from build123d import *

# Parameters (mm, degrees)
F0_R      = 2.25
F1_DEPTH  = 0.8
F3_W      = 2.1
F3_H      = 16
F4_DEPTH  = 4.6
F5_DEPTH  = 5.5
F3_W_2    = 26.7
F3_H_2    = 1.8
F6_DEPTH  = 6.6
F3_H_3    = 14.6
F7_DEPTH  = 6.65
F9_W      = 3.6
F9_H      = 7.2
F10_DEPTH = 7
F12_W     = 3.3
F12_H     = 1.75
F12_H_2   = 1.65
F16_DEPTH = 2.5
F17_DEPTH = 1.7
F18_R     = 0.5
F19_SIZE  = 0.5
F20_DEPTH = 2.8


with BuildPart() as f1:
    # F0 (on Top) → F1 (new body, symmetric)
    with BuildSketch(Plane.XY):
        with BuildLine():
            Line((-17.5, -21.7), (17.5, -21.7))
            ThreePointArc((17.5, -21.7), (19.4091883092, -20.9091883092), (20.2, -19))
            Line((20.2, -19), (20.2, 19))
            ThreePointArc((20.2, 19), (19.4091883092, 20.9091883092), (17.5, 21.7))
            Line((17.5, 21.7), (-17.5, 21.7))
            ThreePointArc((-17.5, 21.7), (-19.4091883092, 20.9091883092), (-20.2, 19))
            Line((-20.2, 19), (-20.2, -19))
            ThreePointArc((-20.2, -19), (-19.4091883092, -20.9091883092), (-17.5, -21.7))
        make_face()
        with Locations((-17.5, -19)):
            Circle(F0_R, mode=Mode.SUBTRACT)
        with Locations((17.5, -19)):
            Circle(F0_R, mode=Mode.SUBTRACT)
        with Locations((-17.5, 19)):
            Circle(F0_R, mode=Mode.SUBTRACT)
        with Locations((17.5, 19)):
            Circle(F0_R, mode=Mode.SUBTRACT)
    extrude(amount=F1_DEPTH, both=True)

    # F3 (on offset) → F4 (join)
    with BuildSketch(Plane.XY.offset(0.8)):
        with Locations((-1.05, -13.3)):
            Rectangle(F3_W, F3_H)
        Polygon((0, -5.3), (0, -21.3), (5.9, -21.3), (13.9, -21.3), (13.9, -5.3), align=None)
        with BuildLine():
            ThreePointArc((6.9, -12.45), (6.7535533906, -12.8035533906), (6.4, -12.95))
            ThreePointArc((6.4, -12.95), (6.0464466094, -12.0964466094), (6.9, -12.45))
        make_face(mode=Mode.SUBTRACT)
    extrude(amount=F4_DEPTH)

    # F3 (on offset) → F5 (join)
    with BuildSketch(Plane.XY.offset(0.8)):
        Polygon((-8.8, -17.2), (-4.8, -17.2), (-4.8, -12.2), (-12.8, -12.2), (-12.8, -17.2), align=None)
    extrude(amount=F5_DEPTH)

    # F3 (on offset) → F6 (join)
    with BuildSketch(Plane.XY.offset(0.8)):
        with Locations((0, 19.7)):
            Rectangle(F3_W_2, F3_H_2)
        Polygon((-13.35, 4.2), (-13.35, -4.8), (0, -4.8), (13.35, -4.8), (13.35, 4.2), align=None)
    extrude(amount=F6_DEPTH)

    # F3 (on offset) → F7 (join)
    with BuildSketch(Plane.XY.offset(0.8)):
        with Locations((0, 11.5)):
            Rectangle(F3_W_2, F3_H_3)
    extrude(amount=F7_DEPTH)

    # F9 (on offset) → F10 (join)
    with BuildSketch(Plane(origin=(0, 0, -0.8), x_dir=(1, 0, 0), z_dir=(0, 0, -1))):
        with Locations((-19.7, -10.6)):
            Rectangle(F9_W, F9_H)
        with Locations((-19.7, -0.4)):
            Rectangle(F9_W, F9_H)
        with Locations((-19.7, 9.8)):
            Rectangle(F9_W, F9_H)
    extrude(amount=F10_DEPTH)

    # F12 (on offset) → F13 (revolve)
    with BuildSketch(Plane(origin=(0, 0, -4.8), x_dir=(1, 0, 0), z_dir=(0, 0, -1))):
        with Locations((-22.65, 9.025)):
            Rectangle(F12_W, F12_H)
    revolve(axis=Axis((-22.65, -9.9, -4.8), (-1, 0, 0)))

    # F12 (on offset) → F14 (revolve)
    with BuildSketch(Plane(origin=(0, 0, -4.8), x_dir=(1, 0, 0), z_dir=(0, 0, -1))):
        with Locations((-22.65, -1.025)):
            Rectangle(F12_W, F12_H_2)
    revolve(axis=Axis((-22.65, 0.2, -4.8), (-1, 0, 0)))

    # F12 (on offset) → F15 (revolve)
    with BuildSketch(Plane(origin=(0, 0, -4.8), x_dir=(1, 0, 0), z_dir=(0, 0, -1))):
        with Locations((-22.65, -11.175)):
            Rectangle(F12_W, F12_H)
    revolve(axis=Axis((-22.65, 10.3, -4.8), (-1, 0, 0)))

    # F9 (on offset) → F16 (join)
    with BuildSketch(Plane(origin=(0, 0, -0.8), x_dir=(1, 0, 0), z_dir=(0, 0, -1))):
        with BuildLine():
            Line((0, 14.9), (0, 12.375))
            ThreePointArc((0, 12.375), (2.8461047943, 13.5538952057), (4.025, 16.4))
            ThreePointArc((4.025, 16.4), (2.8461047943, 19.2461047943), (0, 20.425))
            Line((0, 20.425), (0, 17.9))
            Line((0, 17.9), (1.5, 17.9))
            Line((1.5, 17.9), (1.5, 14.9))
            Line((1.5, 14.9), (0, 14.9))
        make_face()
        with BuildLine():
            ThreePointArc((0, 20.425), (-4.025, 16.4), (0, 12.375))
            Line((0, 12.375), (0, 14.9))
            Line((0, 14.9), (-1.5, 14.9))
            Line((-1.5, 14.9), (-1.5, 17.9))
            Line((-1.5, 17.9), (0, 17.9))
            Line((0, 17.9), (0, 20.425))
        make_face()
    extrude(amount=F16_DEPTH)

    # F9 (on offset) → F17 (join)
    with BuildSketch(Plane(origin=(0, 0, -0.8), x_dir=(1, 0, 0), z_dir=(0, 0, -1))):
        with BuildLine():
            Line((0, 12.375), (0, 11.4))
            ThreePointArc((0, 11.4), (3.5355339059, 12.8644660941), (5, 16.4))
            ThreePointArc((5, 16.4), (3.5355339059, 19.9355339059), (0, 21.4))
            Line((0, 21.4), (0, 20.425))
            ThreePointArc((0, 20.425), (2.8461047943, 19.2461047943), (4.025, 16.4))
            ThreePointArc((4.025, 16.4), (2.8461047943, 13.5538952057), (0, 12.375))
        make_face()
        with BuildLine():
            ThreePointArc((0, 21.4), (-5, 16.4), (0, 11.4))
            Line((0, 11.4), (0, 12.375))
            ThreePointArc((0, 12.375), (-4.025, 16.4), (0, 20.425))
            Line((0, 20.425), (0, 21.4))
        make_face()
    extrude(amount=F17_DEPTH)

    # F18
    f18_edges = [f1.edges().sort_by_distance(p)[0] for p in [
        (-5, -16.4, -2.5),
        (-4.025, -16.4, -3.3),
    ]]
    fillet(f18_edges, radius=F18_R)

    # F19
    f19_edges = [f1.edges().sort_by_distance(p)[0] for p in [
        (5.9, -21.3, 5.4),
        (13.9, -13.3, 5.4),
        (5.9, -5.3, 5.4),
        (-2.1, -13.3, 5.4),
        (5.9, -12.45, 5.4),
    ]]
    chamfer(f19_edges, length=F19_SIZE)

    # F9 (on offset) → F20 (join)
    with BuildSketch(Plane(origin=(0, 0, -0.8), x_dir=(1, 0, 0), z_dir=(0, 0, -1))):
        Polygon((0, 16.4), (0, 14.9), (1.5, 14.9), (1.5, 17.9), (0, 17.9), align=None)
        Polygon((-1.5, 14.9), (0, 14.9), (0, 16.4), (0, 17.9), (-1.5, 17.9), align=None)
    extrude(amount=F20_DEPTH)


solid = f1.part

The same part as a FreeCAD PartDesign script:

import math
import FreeCAD as App
import Part
import Sketcher
Q = App.Units.Quantity


def edges_at(feature, points):
    """Names of the edges that pass closest to the given points."""
    edges = feature.Shape.Edges
    near = lambda p: min(range(len(edges)), key=lambda i: edges[i].distToShape(Part.Vertex(*p))[0])
    return sorted({f"Edge{near(p) + 1}" for p in points})

doc = App.newDocument("Part")
body = doc.addObject("PartDesign::Body", "Body")

# Sketch on XY plane
sketch1 = doc.addObject("Sketcher::SketchObject", "Sketch")
body.addObject(sketch1)
sketch1.AttachmentSupport = (doc.XY_Plane, [""])
sketch1.MapMode = "FlatFace"
sketch1.addGeometry([
    Part.LineSegment(App.Vector(-17.5, -21.7, 0), App.Vector(17.5, -21.7, 0)),  # 0
    Part.ArcOfCircle(Part.Circle(App.Vector(17.5, -19, 0), App.Vector(0, 0, 1), 2.7), math.radians(-90), math.radians(0)),  # 1
    Part.LineSegment(App.Vector(20.2, -19, 0), App.Vector(20.2, 19, 0)),  # 2
    Part.ArcOfCircle(Part.Circle(App.Vector(17.5, 19, 0), App.Vector(0, 0, 1), 2.7), math.radians(0), math.radians(90)),  # 3
    Part.LineSegment(App.Vector(17.5, 21.7, 0), App.Vector(-17.5, 21.7, 0)),  # 4
    Part.ArcOfCircle(Part.Circle(App.Vector(-17.5, 19, 0), App.Vector(0, 0, 1), 2.7), math.radians(90), math.radians(180)),  # 5
    Part.LineSegment(App.Vector(-20.2, 19, 0), App.Vector(-20.2, -19, 0)),  # 6
    Part.ArcOfCircle(Part.Circle(App.Vector(-17.5, -19, 0), App.Vector(0, 0, 1), 2.7), math.radians(180), math.radians(270)),  # 7
    Part.Circle(App.Vector(-17.5, -19, 0), App.Vector(0, 0, 1), 2.25),  # 8
    Part.Circle(App.Vector(17.5, -19, 0), App.Vector(0, 0, 1), 2.25),  # 9
    Part.Circle(App.Vector(-17.5, 19, 0), App.Vector(0, 0, 1), 2.25),  # 10
    Part.Circle(App.Vector(17.5, 19, 0), App.Vector(0, 0, 1), 2.25),  # 11
], False)
sketch1.addConstraint([
    Sketcher.Constraint("Tangent", 0, 2, 1, 1),
    Sketcher.Constraint("Tangent", 1, 2, 2, 1),
    Sketcher.Constraint("Tangent", 2, 2, 3, 1),
    Sketcher.Constraint("Tangent", 3, 2, 4, 1),
    Sketcher.Constraint("Tangent", 4, 2, 5, 1),
    Sketcher.Constraint("Tangent", 5, 2, 6, 1),
    Sketcher.Constraint("Tangent", 6, 2, 7, 1),
    Sketcher.Constraint("Tangent", 7, 2, 0, 1),
    Sketcher.Constraint("Horizontal", 0),
    Sketcher.Constraint("Vertical", 2),
    Sketcher.Constraint("Horizontal", 4),
    Sketcher.Constraint("Vertical", 6),
    Sketcher.Constraint("Coincident", 8, 3, 7, 3),
    Sketcher.Constraint("Coincident", 9, 3, 1, 3),
    Sketcher.Constraint("Coincident", 10, 3, 5, 3),
    Sketcher.Constraint("Coincident", 11, 3, 3, 3),
    Sketcher.Constraint("Equal", 1, 3),
    Sketcher.Constraint("Equal", 3, 5),
    Sketcher.Constraint("Equal", 5, 7),
    Sketcher.Constraint("Equal", 8, 9),
    Sketcher.Constraint("Equal", 9, 10),
    Sketcher.Constraint("Equal", 10, 11),
    Sketcher.Constraint("Symmetric", 1, 3, 5, 3, -1, 1),
    Sketcher.Constraint("Diameter", 8, Q("4.5 mm")),
    Sketcher.Constraint("Radius", 1, Q("2.7 mm")),
    Sketcher.Constraint("DistanceX", 0, 1, 0, 2, Q("35 mm")),
    Sketcher.Constraint("DistanceY", 2, 1, 2, 2, Q("38 mm")),
])
pad1 = doc.addObject("PartDesign::Pad", "Pad")
body.addObject(pad1)
pad1.Profile = sketch1
pad1.Length = 1.6
pad1.Midplane = True

# Sketch on XY plane
sketch2 = doc.addObject("Sketcher::SketchObject", "Sketch001")
body.addObject(sketch2)
sketch2.AttachmentSupport = (doc.XY_Plane, [""])
sketch2.MapMode = "FlatFace"
sketch2.AttachmentOffset = App.Placement(App.Vector(0, 0, 0.8), App.Rotation())
sketch2.addGeometry([
    Part.LineSegment(App.Vector(-2.1, -5.3, 0), App.Vector(-2.1, -21.3, 0)),  # 0
    Part.LineSegment(App.Vector(-2.1, -21.3, 0), App.Vector(13.9, -21.3, 0)),  # 1
    Part.LineSegment(App.Vector(13.9, -21.3, 0), App.Vector(13.9, -5.3, 0)),  # 2
    Part.LineSegment(App.Vector(13.9, -5.3, 0), App.Vector(-2.1, -5.3, 0)),  # 3
    Part.ArcOfCircle(Part.Circle(App.Vector(6.4, -12.45, 0), App.Vector(0, 0, 1), 0.5), math.radians(0), math.radians(270)),  # 4
    Part.ArcOfCircle(Part.Circle(App.Vector(6.4, -12.45, 0), App.Vector(0, 0, 1), 0.5), math.radians(-90), math.radians(0)),  # 5
], False)
sketch2.addConstraint([
    Sketcher.Constraint("Coincident", 0, 2, 1, 1),
    Sketcher.Constraint("Coincident", 1, 2, 2, 1),
    Sketcher.Constraint("Coincident", 2, 2, 3, 1),
    Sketcher.Constraint("Coincident", 3, 2, 0, 1),
    Sketcher.Constraint("Tangent", 4, 1, 5, 2),
    Sketcher.Constraint("Coincident", 5, 1, 4, 2),
    Sketcher.Constraint("Vertical", 0),
    Sketcher.Constraint("Horizontal", 1),
    Sketcher.Constraint("Vertical", 2),
    Sketcher.Constraint("Horizontal", 3),
    Sketcher.Constraint("Horizontal", 5, 3, 4, 1),
    Sketcher.Constraint("Vertical", 4, 3, 5, 1),
    Sketcher.Constraint("Equal", 3, 0),
    Sketcher.Constraint("Radius", 4, Q("0.5 mm")),
    Sketcher.Constraint("DistanceX", 1, 1, 1, 2, Q("16 mm")),
    Sketcher.Constraint("DistanceX", 4, 1, 2, 2, Q("7 mm")),
    Sketcher.Constraint("DistanceX", -1, 1, 4, 3, Q("6.4 mm")),
    Sketcher.Constraint("DistanceY", 0, 2, -1, 1, Q("21.3 mm")),
    Sketcher.Constraint("DistanceY", 4, 3, -1, 1, Q("12.45 mm")),
])
pad2 = doc.addObject("PartDesign::Pad", "Pad001")
body.addObject(pad2)
pad2.Profile = sketch2
pad2.Length = 4.6

# Sketch on XY plane
sketch3 = doc.addObject("Sketcher::SketchObject", "Sketch002")
body.addObject(sketch3)
sketch3.AttachmentSupport = (doc.XY_Plane, [""])
sketch3.MapMode = "FlatFace"
sketch3.AttachmentOffset = App.Placement(App.Vector(0, 0, 0.8), App.Rotation())
sketch3.addGeometry([
    Part.LineSegment(App.Vector(-4.8, -17.2, 0), App.Vector(-4.8, -12.2, 0)),
    Part.LineSegment(App.Vector(-4.8, -12.2, 0), App.Vector(-12.8, -12.2, 0)),
    Part.LineSegment(App.Vector(-12.8, -12.2, 0), App.Vector(-12.8, -17.2, 0)),
    Part.LineSegment(App.Vector(-12.8, -17.2, 0), App.Vector(-4.8, -17.2, 0)),
], False)
sketch3.addConstraint([
    Sketcher.Constraint("Coincident", 0, 2, 1, 1),
    Sketcher.Constraint("Coincident", 1, 2, 2, 1),
    Sketcher.Constraint("Coincident", 2, 2, 3, 1),
    Sketcher.Constraint("Coincident", 3, 2, 0, 1),
    Sketcher.Constraint("Vertical", 0),
    Sketcher.Constraint("Horizontal", 1),
    Sketcher.Constraint("Vertical", 2),
    Sketcher.Constraint("Horizontal", 3),
    Sketcher.Constraint("DistanceX", 1, 2, 1, 1, Q("8 mm")),
    Sketcher.Constraint("DistanceY", 0, 1, 0, 2, Q("5 mm")),
    Sketcher.Constraint("DistanceX", 0, 2, -1, 1, Q("4.8 mm")),
    Sketcher.Constraint("DistanceY", 0, 2, -1, 1, Q("12.2 mm")),
])
pad3 = doc.addObject("PartDesign::Pad", "Pad002")
body.addObject(pad3)
pad3.Profile = sketch3
pad3.Length = 5.5

# Sketch on XY plane
sketch4 = doc.addObject("Sketcher::SketchObject", "Sketch003")
body.addObject(sketch4)
sketch4.AttachmentSupport = (doc.XY_Plane, [""])
sketch4.MapMode = "FlatFace"
sketch4.AttachmentOffset = App.Placement(App.Vector(0, 0, 0.8), App.Rotation())
sketch4.addGeometry([
    Part.LineSegment(App.Vector(-13.35, 20.6, 0), App.Vector(-13.35, 18.8, 0)),  # 0
    Part.LineSegment(App.Vector(-13.35, 18.8, 0), App.Vector(13.35, 18.8, 0)),  # 1
    Part.LineSegment(App.Vector(13.35, 18.8, 0), App.Vector(13.35, 20.6, 0)),  # 2
    Part.LineSegment(App.Vector(13.35, 20.6, 0), App.Vector(-13.35, 20.6, 0)),  # 3
    Part.LineSegment(App.Vector(-13.35, 4.2, 0), App.Vector(-13.35, -4.8, 0)),  # 4
    Part.LineSegment(App.Vector(-13.35, -4.8, 0), App.Vector(13.35, -4.8, 0)),  # 5
    Part.LineSegment(App.Vector(13.35, -4.8, 0), App.Vector(13.35, 4.2, 0)),  # 6
    Part.LineSegment(App.Vector(13.35, 4.2, 0), App.Vector(-13.35, 4.2, 0)),  # 7
], False)
sketch4.addConstraint([
    Sketcher.Constraint("Coincident", 0, 2, 1, 1),
    Sketcher.Constraint("Coincident", 1, 2, 2, 1),
    Sketcher.Constraint("Coincident", 2, 2, 3, 1),
    Sketcher.Constraint("Coincident", 3, 2, 0, 1),
    Sketcher.Constraint("Coincident", 4, 2, 5, 1),
    Sketcher.Constraint("Coincident", 5, 2, 6, 1),
    Sketcher.Constraint("Coincident", 6, 2, 7, 1),
    Sketcher.Constraint("Coincident", 7, 2, 4, 1),
    Sketcher.Constraint("Vertical", 0),
    Sketcher.Constraint("Horizontal", 1),
    Sketcher.Constraint("Vertical", 2),
    Sketcher.Constraint("Horizontal", 3),
    Sketcher.Constraint("Vertical", 4),
    Sketcher.Constraint("Horizontal", 5),
    Sketcher.Constraint("Vertical", 6),
    Sketcher.Constraint("Horizontal", 7),
    Sketcher.Constraint("Vertical", 3, 2, 4, 2),
    Sketcher.Constraint("Vertical", 2, 2, 5, 2),
    Sketcher.Constraint("DistanceY", 4, 2, 4, 1, Q("9 mm")),
    Sketcher.Constraint("DistanceX", 1, 1, 1, 2, Q("26.7 mm")),
    Sketcher.Constraint("DistanceY", 0, 2, 0, 1, Q("1.8 mm")),
    Sketcher.Constraint("DistanceY", -1, 1, 0, 2, Q("18.8 mm")),
    Sketcher.Constraint("DistanceY", 4, 2, -1, 1, Q("4.8 mm")),
    Sketcher.Constraint("DistanceX", 0, 2, -1, 1, Q("13.35 mm")),
])
pad4 = doc.addObject("PartDesign::Pad", "Pad003")
body.addObject(pad4)
pad4.Profile = sketch4
pad4.Length = 6.6

# Sketch on XY plane
sketch5 = doc.addObject("Sketcher::SketchObject", "Sketch004")
body.addObject(sketch5)
sketch5.AttachmentSupport = (doc.XY_Plane, [""])
sketch5.MapMode = "FlatFace"
sketch5.AttachmentOffset = App.Placement(App.Vector(0, 0, 0.8), App.Rotation())
sketch5.addGeometry([
    Part.LineSegment(App.Vector(-13.35, 18.8, 0), App.Vector(-13.35, 4.2, 0)),
    Part.LineSegment(App.Vector(-13.35, 4.2, 0), App.Vector(13.35, 4.2, 0)),
    Part.LineSegment(App.Vector(13.35, 4.2, 0), App.Vector(13.35, 18.8, 0)),
    Part.LineSegment(App.Vector(13.35, 18.8, 0), App.Vector(-13.35, 18.8, 0)),
], False)
sketch5.addConstraint([
    Sketcher.Constraint("Coincident", 0, 2, 1, 1),
    Sketcher.Constraint("Coincident", 1, 2, 2, 1),
    Sketcher.Constraint("Coincident", 2, 2, 3, 1),
    Sketcher.Constraint("Coincident", 3, 2, 0, 1),
    Sketcher.Constraint("Vertical", 0),
    Sketcher.Constraint("Horizontal", 1),
    Sketcher.Constraint("Vertical", 2),
    Sketcher.Constraint("Horizontal", 3),
    Sketcher.Constraint("DistanceX", 1, 1, 1, 2, Q("26.7 mm")),
    Sketcher.Constraint("DistanceY", 0, 2, 0, 1, Q("14.6 mm")),
    Sketcher.Constraint("DistanceY", -1, 1, 0, 2, Q("4.2 mm")),
    Sketcher.Constraint("DistanceX", 0, 2, -1, 1, Q("13.35 mm")),
])
pad5 = doc.addObject("PartDesign::Pad", "Pad004")
body.addObject(pad5)
pad5.Profile = sketch5
pad5.Length = 6.65

# Sketch on XY plane
sketch6 = doc.addObject("Sketcher::SketchObject", "Sketch005")
body.addObject(sketch6)
sketch6.AttachmentSupport = (doc.XY_Plane, [""])
sketch6.MapMode = "FlatFace"
sketch6.AttachmentOffset = App.Placement(App.Vector(0, 0, -0.8), App.Rotation())
sketch6.addGeometry([
    Part.LineSegment(App.Vector(-21.5, 7, 0), App.Vector(-21.5, 14.2, 0)),  # 0
    Part.LineSegment(App.Vector(-21.5, 14.2, 0), App.Vector(-17.9, 14.2, 0)),  # 1
    Part.LineSegment(App.Vector(-17.9, 14.2, 0), App.Vector(-17.9, 7, 0)),  # 2
    Part.LineSegment(App.Vector(-17.9, 7, 0), App.Vector(-21.5, 7, 0)),  # 3
    Part.LineSegment(App.Vector(-21.5, -3.2, 0), App.Vector(-21.5, 4, 0)),  # 4
    Part.LineSegment(App.Vector(-21.5, 4, 0), App.Vector(-17.9, 4, 0)),  # 5
    Part.LineSegment(App.Vector(-17.9, 4, 0), App.Vector(-17.9, -3.2, 0)),  # 6
    Part.LineSegment(App.Vector(-17.9, -3.2, 0), App.Vector(-21.5, -3.2, 0)),  # 7
    Part.LineSegment(App.Vector(-21.5, -13.4, 0), App.Vector(-21.5, -6.2, 0)),  # 8
    Part.LineSegment(App.Vector(-21.5, -6.2, 0), App.Vector(-17.9, -6.2, 0)),  # 9
    Part.LineSegment(App.Vector(-17.9, -6.2, 0), App.Vector(-17.9, -13.4, 0)),  # 10
    Part.LineSegment(App.Vector(-17.9, -13.4, 0), App.Vector(-21.5, -13.4, 0)),  # 11
], False)
sketch6.addConstraint([
    Sketcher.Constraint("Coincident", 0, 2, 1, 1),
    Sketcher.Constraint("Coincident", 1, 2, 2, 1),
    Sketcher.Constraint("Coincident", 2, 2, 3, 1),
    Sketcher.Constraint("Coincident", 3, 2, 0, 1),
    Sketcher.Constraint("Coincident", 4, 2, 5, 1),
    Sketcher.Constraint("Coincident", 5, 2, 6, 1),
    Sketcher.Constraint("Coincident", 6, 2, 7, 1),
    Sketcher.Constraint("Coincident", 7, 2, 4, 1),
    Sketcher.Constraint("Coincident", 8, 2, 9, 1),
    Sketcher.Constraint("Coincident", 9, 2, 10, 1),
    Sketcher.Constraint("Coincident", 10, 2, 11, 1),
    Sketcher.Constraint("Coincident", 11, 2, 8, 1),
    Sketcher.Constraint("Vertical", 0),
    Sketcher.Constraint("Horizontal", 1),
    Sketcher.Constraint("Vertical", 2),
    Sketcher.Constraint("Horizontal", 3),
    Sketcher.Constraint("Vertical", 4),
    Sketcher.Constraint("Horizontal", 5),
    Sketcher.Constraint("Vertical", 6),
    Sketcher.Constraint("Horizontal", 7),
    Sketcher.Constraint("Vertical", 8),
    Sketcher.Constraint("Horizontal", 9),
    Sketcher.Constraint("Vertical", 10),
    Sketcher.Constraint("Horizontal", 11),
    Sketcher.Constraint("Vertical", 3, 2, 4, 2),
    Sketcher.Constraint("Vertical", 2, 2, 5, 2),
    Sketcher.Constraint("Vertical", 7, 2, 8, 2),
    Sketcher.Constraint("Vertical", 6, 2, 9, 2),
    Sketcher.Constraint("Equal", 2, 4),
    Sketcher.Constraint("Equal", 6, 8),
    Sketcher.Constraint("DistanceX", 1, 1, 1, 2, Q("3.6 mm")),
    Sketcher.Constraint("DistanceY", 0, 1, 0, 2, Q("7.2 mm")),
    Sketcher.Constraint("DistanceY", -1, 1, 2, 2, Q("7 mm")),
    Sketcher.Constraint("DistanceY", -1, 1, 4, 2, Q("4 mm")),
    Sketcher.Constraint("DistanceY", 8, 2, 7, 2, Q("3 mm")),
    Sketcher.Constraint("DistanceX", 0, 2, -1, 1, Q("21.5 mm")),
])
pad6 = doc.addObject("PartDesign::Pad", "Pad005")
body.addObject(pad6)
pad6.Profile = sketch6
pad6.Length = 7
pad6.Reversed = True

# Sketch on XY plane
sketch7 = doc.addObject("Sketcher::SketchObject", "Sketch006")
body.addObject(sketch7)
sketch7.AttachmentSupport = (doc.XY_Plane, [""])
sketch7.MapMode = "FlatFace"
sketch7.AttachmentOffset = App.Placement(App.Vector(0, 0, -4.8), App.Rotation())
sketch7.addGeometry([
    Part.LineSegment(App.Vector(-24.3, -9.9, 0), App.Vector(-24.3, -8.15, 0)),
    Part.LineSegment(App.Vector(-24.3, -8.15, 0), App.Vector(-21, -8.15, 0)),
    Part.LineSegment(App.Vector(-21, -8.15, 0), App.Vector(-21, -9.9, 0)),
    Part.LineSegment(App.Vector(-21, -9.9, 0), App.Vector(-24.3, -9.9, 0)),
], False)
sketch7.addGeometry(Part.LineSegment(App.Vector(-21, -9.9, 0), App.Vector(-24.3, -9.9, 0)), True)  # axis
sketch7.addConstraint([
    Sketcher.Constraint("Coincident", 0, 2, 1, 1),
    Sketcher.Constraint("Coincident", 1, 2, 2, 1),
    Sketcher.Constraint("Coincident", 2, 2, 3, 1),
    Sketcher.Constraint("Coincident", 3, 2, 0, 1),
    Sketcher.Constraint("Vertical", 0),
    Sketcher.Constraint("Horizontal", 1),
    Sketcher.Constraint("Vertical", 2),
    Sketcher.Constraint("Horizontal", 3),
    Sketcher.Constraint("Horizontal", 4),
    Sketcher.Constraint("Coincident", 4, 1, 2, 2),
    Sketcher.Constraint("Vertical", 0, 2, 4, 2),
    Sketcher.Constraint("DistanceX", 1, 1, 1, 2, Q("3.3 mm")),
    Sketcher.Constraint("DistanceX", 1, 2, -1, 1, Q("21 mm")),
    Sketcher.Constraint("DistanceY", 0, 1, 0, 2, Q("1.75 mm")),
    Sketcher.Constraint("DistanceY", 2, 2, -1, 1, Q("9.9 mm")),
])
revolution = doc.addObject("PartDesign::Revolution", "Revolution")
body.addObject(revolution)
revolution.Profile = sketch7
revolution.ReferenceAxis = (sketch7, ["Axis0"])
revolution.Angle = 360

# Sketch on XY plane
sketch8 = doc.addObject("Sketcher::SketchObject", "Sketch007")
body.addObject(sketch8)
sketch8.AttachmentSupport = (doc.XY_Plane, [""])
sketch8.MapMode = "FlatFace"
sketch8.AttachmentOffset = App.Placement(App.Vector(0, 0, -4.8), App.Rotation())
sketch8.addGeometry([
    Part.LineSegment(App.Vector(-24.3, 0.2, 0), App.Vector(-24.3, 1.85, 0)),
    Part.LineSegment(App.Vector(-24.3, 1.85, 0), App.Vector(-21, 1.85, 0)),
    Part.LineSegment(App.Vector(-21, 1.85, 0), App.Vector(-21, 0.2, 0)),
    Part.LineSegment(App.Vector(-21, 0.2, 0), App.Vector(-24.3, 0.2, 0)),
], False)
sketch8.addGeometry(Part.LineSegment(App.Vector(-21, 0.2, 0), App.Vector(-24.3, 0.2, 0)), True)  # axis
sketch8.addConstraint([
    Sketcher.Constraint("Coincident", 0, 2, 1, 1),
    Sketcher.Constraint("Coincident", 1, 2, 2, 1),
    Sketcher.Constraint("Coincident", 2, 2, 3, 1),
    Sketcher.Constraint("Coincident", 3, 2, 0, 1),
    Sketcher.Constraint("Vertical", 0),
    Sketcher.Constraint("Horizontal", 1),
    Sketcher.Constraint("Vertical", 2),
    Sketcher.Constraint("Horizontal", 3),
    Sketcher.Constraint("Horizontal", 4),
    Sketcher.Constraint("Coincident", 4, 1, 2, 2),
    Sketcher.Constraint("Vertical", 0, 2, 4, 2),
    Sketcher.Constraint("DistanceX", 1, 1, 1, 2, Q("3.3 mm")),
    Sketcher.Constraint("DistanceX", 1, 2, -1, 1, Q("21 mm")),
    Sketcher.Constraint("DistanceY", 0, 1, 0, 2, Q("1.65 mm")),
    Sketcher.Constraint("DistanceY", -1, 1, 2, 2, Q("0.2 mm")),
])
revolution2 = doc.addObject("PartDesign::Revolution", "Revolution001")
body.addObject(revolution2)
revolution2.Profile = sketch8
revolution2.ReferenceAxis = (sketch8, ["Axis0"])
revolution2.Angle = 360

# Sketch on XY plane
sketch9 = doc.addObject("Sketcher::SketchObject", "Sketch008")
body.addObject(sketch9)
sketch9.AttachmentSupport = (doc.XY_Plane, [""])
sketch9.MapMode = "FlatFace"
sketch9.AttachmentOffset = App.Placement(App.Vector(0, 0, -4.8), App.Rotation())
sketch9.addGeometry([
    Part.LineSegment(App.Vector(-24.3, 10.3, 0), App.Vector(-24.3, 12.05, 0)),
    Part.LineSegment(App.Vector(-24.3, 12.05, 0), App.Vector(-21, 12.05, 0)),
    Part.LineSegment(App.Vector(-21, 12.05, 0), App.Vector(-21, 10.3, 0)),
    Part.LineSegment(App.Vector(-21, 10.3, 0), App.Vector(-24.3, 10.3, 0)),
], False)
sketch9.addGeometry(Part.LineSegment(App.Vector(-21, 10.3, 0), App.Vector(-24.3, 10.3, 0)), True)  # axis
sketch9.addConstraint([
    Sketcher.Constraint("Coincident", 0, 2, 1, 1),
    Sketcher.Constraint("Coincident", 1, 2, 2, 1),
    Sketcher.Constraint("Coincident", 2, 2, 3, 1),
    Sketcher.Constraint("Coincident", 3, 2, 0, 1),
    Sketcher.Constraint("Vertical", 0),
    Sketcher.Constraint("Horizontal", 1),
    Sketcher.Constraint("Vertical", 2),
    Sketcher.Constraint("Horizontal", 3),
    Sketcher.Constraint("Horizontal", 4),
    Sketcher.Constraint("Coincident", 4, 1, 2, 2),
    Sketcher.Constraint("Vertical", 0, 2, 4, 2),
    Sketcher.Constraint("DistanceX", 1, 1, 1, 2, Q("3.3 mm")),
    Sketcher.Constraint("DistanceX", 1, 2, -1, 1, Q("21 mm")),
    Sketcher.Constraint("DistanceY", 0, 1, 0, 2, Q("1.75 mm")),
    Sketcher.Constraint("DistanceY", -1, 1, 2, 2, Q("10.3 mm")),
])
revolution3 = doc.addObject("PartDesign::Revolution", "Revolution002")
body.addObject(revolution3)
revolution3.Profile = sketch9
revolution3.ReferenceAxis = (sketch9, ["Axis0"])
revolution3.Angle = 360

# Sketch on XY plane
sketch10 = doc.addObject("Sketcher::SketchObject", "Sketch009")
body.addObject(sketch10)
sketch10.AttachmentSupport = (doc.XY_Plane, [""])
sketch10.MapMode = "FlatFace"
sketch10.AttachmentOffset = App.Placement(App.Vector(0, 0, -0.8), App.Rotation())
sketch10.addGeometry([
    Part.ArcOfCircle(Part.Circle(App.Vector(0, -16.4, 0), App.Vector(0, 0, 1), 4.025), math.radians(0), math.radians(90)),  # 0
    Part.ArcOfCircle(Part.Circle(App.Vector(0, -16.4, 0), App.Vector(0, 0, 1), 4.025), math.radians(-90), math.radians(0)),  # 1
    Part.ArcOfCircle(Part.Circle(App.Vector(0, -16.4, 0), App.Vector(0, 0, 1), 4.025), math.radians(90), math.radians(270)),  # 2
    Part.LineSegment(App.Vector(1.5, -17.9, 0), App.Vector(1.5, -14.9, 0)),  # 3
    Part.LineSegment(App.Vector(1.5, -14.9, 0), App.Vector(-1.5, -14.9, 0)),  # 4
    Part.LineSegment(App.Vector(-1.5, -14.9, 0), App.Vector(-1.5, -17.9, 0)),  # 5
    Part.LineSegment(App.Vector(-1.5, -17.9, 0), App.Vector(1.5, -17.9, 0)),  # 6
], False)
sketch10.addConstraint([
    Sketcher.Constraint("Tangent", 0, 1, 1, 2),
    Sketcher.Constraint("Tangent", 1, 1, 2, 2),
    Sketcher.Constraint("Tangent", 2, 1, 0, 2),
    Sketcher.Constraint("Coincident", 3, 2, 4, 1),
    Sketcher.Constraint("Coincident", 4, 2, 5, 1),
    Sketcher.Constraint("Coincident", 5, 2, 6, 1),
    Sketcher.Constraint("Coincident", 6, 2, 3, 1),
    Sketcher.Constraint("Vertical", 3),
    Sketcher.Constraint("Horizontal", 4),
    Sketcher.Constraint("Vertical", 5),
    Sketcher.Constraint("Horizontal", 6),
    Sketcher.Constraint("PointOnObject", 0, 3, -2),
    Sketcher.Constraint("PointOnObject", 1, 1, -2),
    Sketcher.Constraint("PointOnObject", 2, 1, -2),
    Sketcher.Constraint("Horizontal", 2, 3, 0, 1),
    Sketcher.Constraint("Equal", 6, 3),
    Sketcher.Constraint("DistanceX", 4, 2, 4, 1, Q("3 mm")),
    Sketcher.Constraint("Radius", 0, Q("4.025 mm")),
    Sketcher.Constraint("DistanceY", 0, 3, -1, 1, Q("16.4 mm")),
    Sketcher.Constraint("DistanceX", -1, 1, 3, 2, Q("1.5 mm")),
    Sketcher.Constraint("DistanceY", 3, 2, -1, 1, Q("14.9 mm")),
])
pad7 = doc.addObject("PartDesign::Pad", "Pad006")
body.addObject(pad7)
pad7.Profile = sketch10
pad7.Length = 2.5
pad7.Reversed = True

# Sketch on XY plane
sketch11 = doc.addObject("Sketcher::SketchObject", "Sketch010")
body.addObject(sketch11)
sketch11.AttachmentSupport = (doc.XY_Plane, [""])
sketch11.MapMode = "FlatFace"
sketch11.AttachmentOffset = App.Placement(App.Vector(0, 0, -0.8), App.Rotation())
sketch11.addGeometry([
    Part.ArcOfCircle(Part.Circle(App.Vector(0, -16.4, 0), App.Vector(0, 0, 1), 5), math.radians(0), math.radians(90)),  # 0
    Part.ArcOfCircle(Part.Circle(App.Vector(0, -16.4, 0), App.Vector(0, 0, 1), 5), math.radians(-90), math.radians(0)),  # 1
    Part.ArcOfCircle(Part.Circle(App.Vector(0, -16.4, 0), App.Vector(0, 0, 1), 5), math.radians(90), math.radians(270)),  # 2
    Part.ArcOfCircle(Part.Circle(App.Vector(0, -16.4, 0), App.Vector(0, 0, 1), 4.025), math.radians(-90), math.radians(0)),  # 3
    Part.ArcOfCircle(Part.Circle(App.Vector(0, -16.4, 0), App.Vector(0, 0, 1), 4.025), math.radians(0), math.radians(90)),  # 4
    Part.ArcOfCircle(Part.Circle(App.Vector(0, -16.4, 0), App.Vector(0, 0, 1), 4.025), math.radians(90), math.radians(270)),  # 5
], False)
sketch11.addConstraint([
    Sketcher.Constraint("Tangent", 0, 1, 1, 2),
    Sketcher.Constraint("Tangent", 1, 1, 2, 2),
    Sketcher.Constraint("Tangent", 2, 1, 0, 2),
    Sketcher.Constraint("Tangent", 3, 2, 4, 1),
    Sketcher.Constraint("Tangent", 4, 2, 5, 1),
    Sketcher.Constraint("Tangent", 5, 2, 3, 1),
    Sketcher.Constraint("Coincident", 3, 3, 0, 3),
    Sketcher.Constraint("PointOnObject", 0, 3, -2),
    Sketcher.Constraint("PointOnObject", 1, 1, -2),
    Sketcher.Constraint("PointOnObject", 2, 1, -2),
    Sketcher.Constraint("PointOnObject", 4, 2, -2),
    Sketcher.Constraint("PointOnObject", 5, 2, -2),
    Sketcher.Constraint("Horizontal", 5, 3, 0, 1),
    Sketcher.Constraint("Horizontal", 0, 1, 3, 2),
    Sketcher.Constraint("Radius", 0, Q("5 mm")),
    Sketcher.Constraint("Radius", 3, Q("4.025 mm")),
    Sketcher.Constraint("DistanceY", 0, 3, -1, 1, Q("16.4 mm")),
])
pad8 = doc.addObject("PartDesign::Pad", "Pad007")
body.addObject(pad8)
pad8.Profile = sketch11
pad8.Length = 1.7
pad8.Reversed = True
doc.recompute()

fillet = doc.addObject("PartDesign::Fillet", "Fillet")
body.addObject(fillet)
fillet.Base = (pad8, edges_at(pad8, [(-5, -16.4, -2.5), (-4.025, -16.4, -3.3)]))
fillet.Radius = 0.5
doc.recompute()

chamfer = doc.addObject("PartDesign::Chamfer", "Chamfer")
body.addObject(chamfer)
chamfer.Base = (fillet, edges_at(fillet, [
    (5.9, -21.3, 5.4),
    (13.9, -13.3, 5.4),
    (5.9, -5.3, 5.4),
    (-2.1, -13.3, 5.4),
    (6.046, -12.096, 5.4),
]))
chamfer.Size = 0.5

# Sketch on XY plane
sketch12 = doc.addObject("Sketcher::SketchObject", "Sketch011")
body.addObject(sketch12)
sketch12.AttachmentSupport = (doc.XY_Plane, [""])
sketch12.MapMode = "FlatFace"
sketch12.AttachmentOffset = App.Placement(App.Vector(0, 0, -0.8), App.Rotation())
sketch12.addGeometry([
    Part.LineSegment(App.Vector(1.5, -14.9, 0), App.Vector(1.5, -17.9, 0)),
    Part.LineSegment(App.Vector(1.5, -17.9, 0), App.Vector(-1.5, -17.9, 0)),
    Part.LineSegment(App.Vector(-1.5, -17.9, 0), App.Vector(-1.5, -14.9, 0)),
    Part.LineSegment(App.Vector(-1.5, -14.9, 0), App.Vector(1.5, -14.9, 0)),
], False)
sketch12.addConstraint([
    Sketcher.Constraint("Coincident", 0, 2, 1, 1),
    Sketcher.Constraint("Coincident", 1, 2, 2, 1),
    Sketcher.Constraint("Coincident", 2, 2, 3, 1),
    Sketcher.Constraint("Coincident", 3, 2, 0, 1),
    Sketcher.Constraint("Vertical", 0),
    Sketcher.Constraint("Horizontal", 1),
    Sketcher.Constraint("Vertical", 2),
    Sketcher.Constraint("Horizontal", 3),
    Sketcher.Constraint("Equal", 3, 0),
    Sketcher.Constraint("DistanceX", 1, 2, 1, 1, Q("3 mm")),
    Sketcher.Constraint("DistanceX", -1, 1, 0, 2, Q("1.5 mm")),
    Sketcher.Constraint("DistanceY", 0, 2, -1, 1, Q("17.9 mm")),
])
pad9 = doc.addObject("PartDesign::Pad", "Pad008")
body.addObject(pad9)
pad9.Profile = sketch12
pad9.Length = 2.8
pad9.Reversed = True

doc.recompute()
